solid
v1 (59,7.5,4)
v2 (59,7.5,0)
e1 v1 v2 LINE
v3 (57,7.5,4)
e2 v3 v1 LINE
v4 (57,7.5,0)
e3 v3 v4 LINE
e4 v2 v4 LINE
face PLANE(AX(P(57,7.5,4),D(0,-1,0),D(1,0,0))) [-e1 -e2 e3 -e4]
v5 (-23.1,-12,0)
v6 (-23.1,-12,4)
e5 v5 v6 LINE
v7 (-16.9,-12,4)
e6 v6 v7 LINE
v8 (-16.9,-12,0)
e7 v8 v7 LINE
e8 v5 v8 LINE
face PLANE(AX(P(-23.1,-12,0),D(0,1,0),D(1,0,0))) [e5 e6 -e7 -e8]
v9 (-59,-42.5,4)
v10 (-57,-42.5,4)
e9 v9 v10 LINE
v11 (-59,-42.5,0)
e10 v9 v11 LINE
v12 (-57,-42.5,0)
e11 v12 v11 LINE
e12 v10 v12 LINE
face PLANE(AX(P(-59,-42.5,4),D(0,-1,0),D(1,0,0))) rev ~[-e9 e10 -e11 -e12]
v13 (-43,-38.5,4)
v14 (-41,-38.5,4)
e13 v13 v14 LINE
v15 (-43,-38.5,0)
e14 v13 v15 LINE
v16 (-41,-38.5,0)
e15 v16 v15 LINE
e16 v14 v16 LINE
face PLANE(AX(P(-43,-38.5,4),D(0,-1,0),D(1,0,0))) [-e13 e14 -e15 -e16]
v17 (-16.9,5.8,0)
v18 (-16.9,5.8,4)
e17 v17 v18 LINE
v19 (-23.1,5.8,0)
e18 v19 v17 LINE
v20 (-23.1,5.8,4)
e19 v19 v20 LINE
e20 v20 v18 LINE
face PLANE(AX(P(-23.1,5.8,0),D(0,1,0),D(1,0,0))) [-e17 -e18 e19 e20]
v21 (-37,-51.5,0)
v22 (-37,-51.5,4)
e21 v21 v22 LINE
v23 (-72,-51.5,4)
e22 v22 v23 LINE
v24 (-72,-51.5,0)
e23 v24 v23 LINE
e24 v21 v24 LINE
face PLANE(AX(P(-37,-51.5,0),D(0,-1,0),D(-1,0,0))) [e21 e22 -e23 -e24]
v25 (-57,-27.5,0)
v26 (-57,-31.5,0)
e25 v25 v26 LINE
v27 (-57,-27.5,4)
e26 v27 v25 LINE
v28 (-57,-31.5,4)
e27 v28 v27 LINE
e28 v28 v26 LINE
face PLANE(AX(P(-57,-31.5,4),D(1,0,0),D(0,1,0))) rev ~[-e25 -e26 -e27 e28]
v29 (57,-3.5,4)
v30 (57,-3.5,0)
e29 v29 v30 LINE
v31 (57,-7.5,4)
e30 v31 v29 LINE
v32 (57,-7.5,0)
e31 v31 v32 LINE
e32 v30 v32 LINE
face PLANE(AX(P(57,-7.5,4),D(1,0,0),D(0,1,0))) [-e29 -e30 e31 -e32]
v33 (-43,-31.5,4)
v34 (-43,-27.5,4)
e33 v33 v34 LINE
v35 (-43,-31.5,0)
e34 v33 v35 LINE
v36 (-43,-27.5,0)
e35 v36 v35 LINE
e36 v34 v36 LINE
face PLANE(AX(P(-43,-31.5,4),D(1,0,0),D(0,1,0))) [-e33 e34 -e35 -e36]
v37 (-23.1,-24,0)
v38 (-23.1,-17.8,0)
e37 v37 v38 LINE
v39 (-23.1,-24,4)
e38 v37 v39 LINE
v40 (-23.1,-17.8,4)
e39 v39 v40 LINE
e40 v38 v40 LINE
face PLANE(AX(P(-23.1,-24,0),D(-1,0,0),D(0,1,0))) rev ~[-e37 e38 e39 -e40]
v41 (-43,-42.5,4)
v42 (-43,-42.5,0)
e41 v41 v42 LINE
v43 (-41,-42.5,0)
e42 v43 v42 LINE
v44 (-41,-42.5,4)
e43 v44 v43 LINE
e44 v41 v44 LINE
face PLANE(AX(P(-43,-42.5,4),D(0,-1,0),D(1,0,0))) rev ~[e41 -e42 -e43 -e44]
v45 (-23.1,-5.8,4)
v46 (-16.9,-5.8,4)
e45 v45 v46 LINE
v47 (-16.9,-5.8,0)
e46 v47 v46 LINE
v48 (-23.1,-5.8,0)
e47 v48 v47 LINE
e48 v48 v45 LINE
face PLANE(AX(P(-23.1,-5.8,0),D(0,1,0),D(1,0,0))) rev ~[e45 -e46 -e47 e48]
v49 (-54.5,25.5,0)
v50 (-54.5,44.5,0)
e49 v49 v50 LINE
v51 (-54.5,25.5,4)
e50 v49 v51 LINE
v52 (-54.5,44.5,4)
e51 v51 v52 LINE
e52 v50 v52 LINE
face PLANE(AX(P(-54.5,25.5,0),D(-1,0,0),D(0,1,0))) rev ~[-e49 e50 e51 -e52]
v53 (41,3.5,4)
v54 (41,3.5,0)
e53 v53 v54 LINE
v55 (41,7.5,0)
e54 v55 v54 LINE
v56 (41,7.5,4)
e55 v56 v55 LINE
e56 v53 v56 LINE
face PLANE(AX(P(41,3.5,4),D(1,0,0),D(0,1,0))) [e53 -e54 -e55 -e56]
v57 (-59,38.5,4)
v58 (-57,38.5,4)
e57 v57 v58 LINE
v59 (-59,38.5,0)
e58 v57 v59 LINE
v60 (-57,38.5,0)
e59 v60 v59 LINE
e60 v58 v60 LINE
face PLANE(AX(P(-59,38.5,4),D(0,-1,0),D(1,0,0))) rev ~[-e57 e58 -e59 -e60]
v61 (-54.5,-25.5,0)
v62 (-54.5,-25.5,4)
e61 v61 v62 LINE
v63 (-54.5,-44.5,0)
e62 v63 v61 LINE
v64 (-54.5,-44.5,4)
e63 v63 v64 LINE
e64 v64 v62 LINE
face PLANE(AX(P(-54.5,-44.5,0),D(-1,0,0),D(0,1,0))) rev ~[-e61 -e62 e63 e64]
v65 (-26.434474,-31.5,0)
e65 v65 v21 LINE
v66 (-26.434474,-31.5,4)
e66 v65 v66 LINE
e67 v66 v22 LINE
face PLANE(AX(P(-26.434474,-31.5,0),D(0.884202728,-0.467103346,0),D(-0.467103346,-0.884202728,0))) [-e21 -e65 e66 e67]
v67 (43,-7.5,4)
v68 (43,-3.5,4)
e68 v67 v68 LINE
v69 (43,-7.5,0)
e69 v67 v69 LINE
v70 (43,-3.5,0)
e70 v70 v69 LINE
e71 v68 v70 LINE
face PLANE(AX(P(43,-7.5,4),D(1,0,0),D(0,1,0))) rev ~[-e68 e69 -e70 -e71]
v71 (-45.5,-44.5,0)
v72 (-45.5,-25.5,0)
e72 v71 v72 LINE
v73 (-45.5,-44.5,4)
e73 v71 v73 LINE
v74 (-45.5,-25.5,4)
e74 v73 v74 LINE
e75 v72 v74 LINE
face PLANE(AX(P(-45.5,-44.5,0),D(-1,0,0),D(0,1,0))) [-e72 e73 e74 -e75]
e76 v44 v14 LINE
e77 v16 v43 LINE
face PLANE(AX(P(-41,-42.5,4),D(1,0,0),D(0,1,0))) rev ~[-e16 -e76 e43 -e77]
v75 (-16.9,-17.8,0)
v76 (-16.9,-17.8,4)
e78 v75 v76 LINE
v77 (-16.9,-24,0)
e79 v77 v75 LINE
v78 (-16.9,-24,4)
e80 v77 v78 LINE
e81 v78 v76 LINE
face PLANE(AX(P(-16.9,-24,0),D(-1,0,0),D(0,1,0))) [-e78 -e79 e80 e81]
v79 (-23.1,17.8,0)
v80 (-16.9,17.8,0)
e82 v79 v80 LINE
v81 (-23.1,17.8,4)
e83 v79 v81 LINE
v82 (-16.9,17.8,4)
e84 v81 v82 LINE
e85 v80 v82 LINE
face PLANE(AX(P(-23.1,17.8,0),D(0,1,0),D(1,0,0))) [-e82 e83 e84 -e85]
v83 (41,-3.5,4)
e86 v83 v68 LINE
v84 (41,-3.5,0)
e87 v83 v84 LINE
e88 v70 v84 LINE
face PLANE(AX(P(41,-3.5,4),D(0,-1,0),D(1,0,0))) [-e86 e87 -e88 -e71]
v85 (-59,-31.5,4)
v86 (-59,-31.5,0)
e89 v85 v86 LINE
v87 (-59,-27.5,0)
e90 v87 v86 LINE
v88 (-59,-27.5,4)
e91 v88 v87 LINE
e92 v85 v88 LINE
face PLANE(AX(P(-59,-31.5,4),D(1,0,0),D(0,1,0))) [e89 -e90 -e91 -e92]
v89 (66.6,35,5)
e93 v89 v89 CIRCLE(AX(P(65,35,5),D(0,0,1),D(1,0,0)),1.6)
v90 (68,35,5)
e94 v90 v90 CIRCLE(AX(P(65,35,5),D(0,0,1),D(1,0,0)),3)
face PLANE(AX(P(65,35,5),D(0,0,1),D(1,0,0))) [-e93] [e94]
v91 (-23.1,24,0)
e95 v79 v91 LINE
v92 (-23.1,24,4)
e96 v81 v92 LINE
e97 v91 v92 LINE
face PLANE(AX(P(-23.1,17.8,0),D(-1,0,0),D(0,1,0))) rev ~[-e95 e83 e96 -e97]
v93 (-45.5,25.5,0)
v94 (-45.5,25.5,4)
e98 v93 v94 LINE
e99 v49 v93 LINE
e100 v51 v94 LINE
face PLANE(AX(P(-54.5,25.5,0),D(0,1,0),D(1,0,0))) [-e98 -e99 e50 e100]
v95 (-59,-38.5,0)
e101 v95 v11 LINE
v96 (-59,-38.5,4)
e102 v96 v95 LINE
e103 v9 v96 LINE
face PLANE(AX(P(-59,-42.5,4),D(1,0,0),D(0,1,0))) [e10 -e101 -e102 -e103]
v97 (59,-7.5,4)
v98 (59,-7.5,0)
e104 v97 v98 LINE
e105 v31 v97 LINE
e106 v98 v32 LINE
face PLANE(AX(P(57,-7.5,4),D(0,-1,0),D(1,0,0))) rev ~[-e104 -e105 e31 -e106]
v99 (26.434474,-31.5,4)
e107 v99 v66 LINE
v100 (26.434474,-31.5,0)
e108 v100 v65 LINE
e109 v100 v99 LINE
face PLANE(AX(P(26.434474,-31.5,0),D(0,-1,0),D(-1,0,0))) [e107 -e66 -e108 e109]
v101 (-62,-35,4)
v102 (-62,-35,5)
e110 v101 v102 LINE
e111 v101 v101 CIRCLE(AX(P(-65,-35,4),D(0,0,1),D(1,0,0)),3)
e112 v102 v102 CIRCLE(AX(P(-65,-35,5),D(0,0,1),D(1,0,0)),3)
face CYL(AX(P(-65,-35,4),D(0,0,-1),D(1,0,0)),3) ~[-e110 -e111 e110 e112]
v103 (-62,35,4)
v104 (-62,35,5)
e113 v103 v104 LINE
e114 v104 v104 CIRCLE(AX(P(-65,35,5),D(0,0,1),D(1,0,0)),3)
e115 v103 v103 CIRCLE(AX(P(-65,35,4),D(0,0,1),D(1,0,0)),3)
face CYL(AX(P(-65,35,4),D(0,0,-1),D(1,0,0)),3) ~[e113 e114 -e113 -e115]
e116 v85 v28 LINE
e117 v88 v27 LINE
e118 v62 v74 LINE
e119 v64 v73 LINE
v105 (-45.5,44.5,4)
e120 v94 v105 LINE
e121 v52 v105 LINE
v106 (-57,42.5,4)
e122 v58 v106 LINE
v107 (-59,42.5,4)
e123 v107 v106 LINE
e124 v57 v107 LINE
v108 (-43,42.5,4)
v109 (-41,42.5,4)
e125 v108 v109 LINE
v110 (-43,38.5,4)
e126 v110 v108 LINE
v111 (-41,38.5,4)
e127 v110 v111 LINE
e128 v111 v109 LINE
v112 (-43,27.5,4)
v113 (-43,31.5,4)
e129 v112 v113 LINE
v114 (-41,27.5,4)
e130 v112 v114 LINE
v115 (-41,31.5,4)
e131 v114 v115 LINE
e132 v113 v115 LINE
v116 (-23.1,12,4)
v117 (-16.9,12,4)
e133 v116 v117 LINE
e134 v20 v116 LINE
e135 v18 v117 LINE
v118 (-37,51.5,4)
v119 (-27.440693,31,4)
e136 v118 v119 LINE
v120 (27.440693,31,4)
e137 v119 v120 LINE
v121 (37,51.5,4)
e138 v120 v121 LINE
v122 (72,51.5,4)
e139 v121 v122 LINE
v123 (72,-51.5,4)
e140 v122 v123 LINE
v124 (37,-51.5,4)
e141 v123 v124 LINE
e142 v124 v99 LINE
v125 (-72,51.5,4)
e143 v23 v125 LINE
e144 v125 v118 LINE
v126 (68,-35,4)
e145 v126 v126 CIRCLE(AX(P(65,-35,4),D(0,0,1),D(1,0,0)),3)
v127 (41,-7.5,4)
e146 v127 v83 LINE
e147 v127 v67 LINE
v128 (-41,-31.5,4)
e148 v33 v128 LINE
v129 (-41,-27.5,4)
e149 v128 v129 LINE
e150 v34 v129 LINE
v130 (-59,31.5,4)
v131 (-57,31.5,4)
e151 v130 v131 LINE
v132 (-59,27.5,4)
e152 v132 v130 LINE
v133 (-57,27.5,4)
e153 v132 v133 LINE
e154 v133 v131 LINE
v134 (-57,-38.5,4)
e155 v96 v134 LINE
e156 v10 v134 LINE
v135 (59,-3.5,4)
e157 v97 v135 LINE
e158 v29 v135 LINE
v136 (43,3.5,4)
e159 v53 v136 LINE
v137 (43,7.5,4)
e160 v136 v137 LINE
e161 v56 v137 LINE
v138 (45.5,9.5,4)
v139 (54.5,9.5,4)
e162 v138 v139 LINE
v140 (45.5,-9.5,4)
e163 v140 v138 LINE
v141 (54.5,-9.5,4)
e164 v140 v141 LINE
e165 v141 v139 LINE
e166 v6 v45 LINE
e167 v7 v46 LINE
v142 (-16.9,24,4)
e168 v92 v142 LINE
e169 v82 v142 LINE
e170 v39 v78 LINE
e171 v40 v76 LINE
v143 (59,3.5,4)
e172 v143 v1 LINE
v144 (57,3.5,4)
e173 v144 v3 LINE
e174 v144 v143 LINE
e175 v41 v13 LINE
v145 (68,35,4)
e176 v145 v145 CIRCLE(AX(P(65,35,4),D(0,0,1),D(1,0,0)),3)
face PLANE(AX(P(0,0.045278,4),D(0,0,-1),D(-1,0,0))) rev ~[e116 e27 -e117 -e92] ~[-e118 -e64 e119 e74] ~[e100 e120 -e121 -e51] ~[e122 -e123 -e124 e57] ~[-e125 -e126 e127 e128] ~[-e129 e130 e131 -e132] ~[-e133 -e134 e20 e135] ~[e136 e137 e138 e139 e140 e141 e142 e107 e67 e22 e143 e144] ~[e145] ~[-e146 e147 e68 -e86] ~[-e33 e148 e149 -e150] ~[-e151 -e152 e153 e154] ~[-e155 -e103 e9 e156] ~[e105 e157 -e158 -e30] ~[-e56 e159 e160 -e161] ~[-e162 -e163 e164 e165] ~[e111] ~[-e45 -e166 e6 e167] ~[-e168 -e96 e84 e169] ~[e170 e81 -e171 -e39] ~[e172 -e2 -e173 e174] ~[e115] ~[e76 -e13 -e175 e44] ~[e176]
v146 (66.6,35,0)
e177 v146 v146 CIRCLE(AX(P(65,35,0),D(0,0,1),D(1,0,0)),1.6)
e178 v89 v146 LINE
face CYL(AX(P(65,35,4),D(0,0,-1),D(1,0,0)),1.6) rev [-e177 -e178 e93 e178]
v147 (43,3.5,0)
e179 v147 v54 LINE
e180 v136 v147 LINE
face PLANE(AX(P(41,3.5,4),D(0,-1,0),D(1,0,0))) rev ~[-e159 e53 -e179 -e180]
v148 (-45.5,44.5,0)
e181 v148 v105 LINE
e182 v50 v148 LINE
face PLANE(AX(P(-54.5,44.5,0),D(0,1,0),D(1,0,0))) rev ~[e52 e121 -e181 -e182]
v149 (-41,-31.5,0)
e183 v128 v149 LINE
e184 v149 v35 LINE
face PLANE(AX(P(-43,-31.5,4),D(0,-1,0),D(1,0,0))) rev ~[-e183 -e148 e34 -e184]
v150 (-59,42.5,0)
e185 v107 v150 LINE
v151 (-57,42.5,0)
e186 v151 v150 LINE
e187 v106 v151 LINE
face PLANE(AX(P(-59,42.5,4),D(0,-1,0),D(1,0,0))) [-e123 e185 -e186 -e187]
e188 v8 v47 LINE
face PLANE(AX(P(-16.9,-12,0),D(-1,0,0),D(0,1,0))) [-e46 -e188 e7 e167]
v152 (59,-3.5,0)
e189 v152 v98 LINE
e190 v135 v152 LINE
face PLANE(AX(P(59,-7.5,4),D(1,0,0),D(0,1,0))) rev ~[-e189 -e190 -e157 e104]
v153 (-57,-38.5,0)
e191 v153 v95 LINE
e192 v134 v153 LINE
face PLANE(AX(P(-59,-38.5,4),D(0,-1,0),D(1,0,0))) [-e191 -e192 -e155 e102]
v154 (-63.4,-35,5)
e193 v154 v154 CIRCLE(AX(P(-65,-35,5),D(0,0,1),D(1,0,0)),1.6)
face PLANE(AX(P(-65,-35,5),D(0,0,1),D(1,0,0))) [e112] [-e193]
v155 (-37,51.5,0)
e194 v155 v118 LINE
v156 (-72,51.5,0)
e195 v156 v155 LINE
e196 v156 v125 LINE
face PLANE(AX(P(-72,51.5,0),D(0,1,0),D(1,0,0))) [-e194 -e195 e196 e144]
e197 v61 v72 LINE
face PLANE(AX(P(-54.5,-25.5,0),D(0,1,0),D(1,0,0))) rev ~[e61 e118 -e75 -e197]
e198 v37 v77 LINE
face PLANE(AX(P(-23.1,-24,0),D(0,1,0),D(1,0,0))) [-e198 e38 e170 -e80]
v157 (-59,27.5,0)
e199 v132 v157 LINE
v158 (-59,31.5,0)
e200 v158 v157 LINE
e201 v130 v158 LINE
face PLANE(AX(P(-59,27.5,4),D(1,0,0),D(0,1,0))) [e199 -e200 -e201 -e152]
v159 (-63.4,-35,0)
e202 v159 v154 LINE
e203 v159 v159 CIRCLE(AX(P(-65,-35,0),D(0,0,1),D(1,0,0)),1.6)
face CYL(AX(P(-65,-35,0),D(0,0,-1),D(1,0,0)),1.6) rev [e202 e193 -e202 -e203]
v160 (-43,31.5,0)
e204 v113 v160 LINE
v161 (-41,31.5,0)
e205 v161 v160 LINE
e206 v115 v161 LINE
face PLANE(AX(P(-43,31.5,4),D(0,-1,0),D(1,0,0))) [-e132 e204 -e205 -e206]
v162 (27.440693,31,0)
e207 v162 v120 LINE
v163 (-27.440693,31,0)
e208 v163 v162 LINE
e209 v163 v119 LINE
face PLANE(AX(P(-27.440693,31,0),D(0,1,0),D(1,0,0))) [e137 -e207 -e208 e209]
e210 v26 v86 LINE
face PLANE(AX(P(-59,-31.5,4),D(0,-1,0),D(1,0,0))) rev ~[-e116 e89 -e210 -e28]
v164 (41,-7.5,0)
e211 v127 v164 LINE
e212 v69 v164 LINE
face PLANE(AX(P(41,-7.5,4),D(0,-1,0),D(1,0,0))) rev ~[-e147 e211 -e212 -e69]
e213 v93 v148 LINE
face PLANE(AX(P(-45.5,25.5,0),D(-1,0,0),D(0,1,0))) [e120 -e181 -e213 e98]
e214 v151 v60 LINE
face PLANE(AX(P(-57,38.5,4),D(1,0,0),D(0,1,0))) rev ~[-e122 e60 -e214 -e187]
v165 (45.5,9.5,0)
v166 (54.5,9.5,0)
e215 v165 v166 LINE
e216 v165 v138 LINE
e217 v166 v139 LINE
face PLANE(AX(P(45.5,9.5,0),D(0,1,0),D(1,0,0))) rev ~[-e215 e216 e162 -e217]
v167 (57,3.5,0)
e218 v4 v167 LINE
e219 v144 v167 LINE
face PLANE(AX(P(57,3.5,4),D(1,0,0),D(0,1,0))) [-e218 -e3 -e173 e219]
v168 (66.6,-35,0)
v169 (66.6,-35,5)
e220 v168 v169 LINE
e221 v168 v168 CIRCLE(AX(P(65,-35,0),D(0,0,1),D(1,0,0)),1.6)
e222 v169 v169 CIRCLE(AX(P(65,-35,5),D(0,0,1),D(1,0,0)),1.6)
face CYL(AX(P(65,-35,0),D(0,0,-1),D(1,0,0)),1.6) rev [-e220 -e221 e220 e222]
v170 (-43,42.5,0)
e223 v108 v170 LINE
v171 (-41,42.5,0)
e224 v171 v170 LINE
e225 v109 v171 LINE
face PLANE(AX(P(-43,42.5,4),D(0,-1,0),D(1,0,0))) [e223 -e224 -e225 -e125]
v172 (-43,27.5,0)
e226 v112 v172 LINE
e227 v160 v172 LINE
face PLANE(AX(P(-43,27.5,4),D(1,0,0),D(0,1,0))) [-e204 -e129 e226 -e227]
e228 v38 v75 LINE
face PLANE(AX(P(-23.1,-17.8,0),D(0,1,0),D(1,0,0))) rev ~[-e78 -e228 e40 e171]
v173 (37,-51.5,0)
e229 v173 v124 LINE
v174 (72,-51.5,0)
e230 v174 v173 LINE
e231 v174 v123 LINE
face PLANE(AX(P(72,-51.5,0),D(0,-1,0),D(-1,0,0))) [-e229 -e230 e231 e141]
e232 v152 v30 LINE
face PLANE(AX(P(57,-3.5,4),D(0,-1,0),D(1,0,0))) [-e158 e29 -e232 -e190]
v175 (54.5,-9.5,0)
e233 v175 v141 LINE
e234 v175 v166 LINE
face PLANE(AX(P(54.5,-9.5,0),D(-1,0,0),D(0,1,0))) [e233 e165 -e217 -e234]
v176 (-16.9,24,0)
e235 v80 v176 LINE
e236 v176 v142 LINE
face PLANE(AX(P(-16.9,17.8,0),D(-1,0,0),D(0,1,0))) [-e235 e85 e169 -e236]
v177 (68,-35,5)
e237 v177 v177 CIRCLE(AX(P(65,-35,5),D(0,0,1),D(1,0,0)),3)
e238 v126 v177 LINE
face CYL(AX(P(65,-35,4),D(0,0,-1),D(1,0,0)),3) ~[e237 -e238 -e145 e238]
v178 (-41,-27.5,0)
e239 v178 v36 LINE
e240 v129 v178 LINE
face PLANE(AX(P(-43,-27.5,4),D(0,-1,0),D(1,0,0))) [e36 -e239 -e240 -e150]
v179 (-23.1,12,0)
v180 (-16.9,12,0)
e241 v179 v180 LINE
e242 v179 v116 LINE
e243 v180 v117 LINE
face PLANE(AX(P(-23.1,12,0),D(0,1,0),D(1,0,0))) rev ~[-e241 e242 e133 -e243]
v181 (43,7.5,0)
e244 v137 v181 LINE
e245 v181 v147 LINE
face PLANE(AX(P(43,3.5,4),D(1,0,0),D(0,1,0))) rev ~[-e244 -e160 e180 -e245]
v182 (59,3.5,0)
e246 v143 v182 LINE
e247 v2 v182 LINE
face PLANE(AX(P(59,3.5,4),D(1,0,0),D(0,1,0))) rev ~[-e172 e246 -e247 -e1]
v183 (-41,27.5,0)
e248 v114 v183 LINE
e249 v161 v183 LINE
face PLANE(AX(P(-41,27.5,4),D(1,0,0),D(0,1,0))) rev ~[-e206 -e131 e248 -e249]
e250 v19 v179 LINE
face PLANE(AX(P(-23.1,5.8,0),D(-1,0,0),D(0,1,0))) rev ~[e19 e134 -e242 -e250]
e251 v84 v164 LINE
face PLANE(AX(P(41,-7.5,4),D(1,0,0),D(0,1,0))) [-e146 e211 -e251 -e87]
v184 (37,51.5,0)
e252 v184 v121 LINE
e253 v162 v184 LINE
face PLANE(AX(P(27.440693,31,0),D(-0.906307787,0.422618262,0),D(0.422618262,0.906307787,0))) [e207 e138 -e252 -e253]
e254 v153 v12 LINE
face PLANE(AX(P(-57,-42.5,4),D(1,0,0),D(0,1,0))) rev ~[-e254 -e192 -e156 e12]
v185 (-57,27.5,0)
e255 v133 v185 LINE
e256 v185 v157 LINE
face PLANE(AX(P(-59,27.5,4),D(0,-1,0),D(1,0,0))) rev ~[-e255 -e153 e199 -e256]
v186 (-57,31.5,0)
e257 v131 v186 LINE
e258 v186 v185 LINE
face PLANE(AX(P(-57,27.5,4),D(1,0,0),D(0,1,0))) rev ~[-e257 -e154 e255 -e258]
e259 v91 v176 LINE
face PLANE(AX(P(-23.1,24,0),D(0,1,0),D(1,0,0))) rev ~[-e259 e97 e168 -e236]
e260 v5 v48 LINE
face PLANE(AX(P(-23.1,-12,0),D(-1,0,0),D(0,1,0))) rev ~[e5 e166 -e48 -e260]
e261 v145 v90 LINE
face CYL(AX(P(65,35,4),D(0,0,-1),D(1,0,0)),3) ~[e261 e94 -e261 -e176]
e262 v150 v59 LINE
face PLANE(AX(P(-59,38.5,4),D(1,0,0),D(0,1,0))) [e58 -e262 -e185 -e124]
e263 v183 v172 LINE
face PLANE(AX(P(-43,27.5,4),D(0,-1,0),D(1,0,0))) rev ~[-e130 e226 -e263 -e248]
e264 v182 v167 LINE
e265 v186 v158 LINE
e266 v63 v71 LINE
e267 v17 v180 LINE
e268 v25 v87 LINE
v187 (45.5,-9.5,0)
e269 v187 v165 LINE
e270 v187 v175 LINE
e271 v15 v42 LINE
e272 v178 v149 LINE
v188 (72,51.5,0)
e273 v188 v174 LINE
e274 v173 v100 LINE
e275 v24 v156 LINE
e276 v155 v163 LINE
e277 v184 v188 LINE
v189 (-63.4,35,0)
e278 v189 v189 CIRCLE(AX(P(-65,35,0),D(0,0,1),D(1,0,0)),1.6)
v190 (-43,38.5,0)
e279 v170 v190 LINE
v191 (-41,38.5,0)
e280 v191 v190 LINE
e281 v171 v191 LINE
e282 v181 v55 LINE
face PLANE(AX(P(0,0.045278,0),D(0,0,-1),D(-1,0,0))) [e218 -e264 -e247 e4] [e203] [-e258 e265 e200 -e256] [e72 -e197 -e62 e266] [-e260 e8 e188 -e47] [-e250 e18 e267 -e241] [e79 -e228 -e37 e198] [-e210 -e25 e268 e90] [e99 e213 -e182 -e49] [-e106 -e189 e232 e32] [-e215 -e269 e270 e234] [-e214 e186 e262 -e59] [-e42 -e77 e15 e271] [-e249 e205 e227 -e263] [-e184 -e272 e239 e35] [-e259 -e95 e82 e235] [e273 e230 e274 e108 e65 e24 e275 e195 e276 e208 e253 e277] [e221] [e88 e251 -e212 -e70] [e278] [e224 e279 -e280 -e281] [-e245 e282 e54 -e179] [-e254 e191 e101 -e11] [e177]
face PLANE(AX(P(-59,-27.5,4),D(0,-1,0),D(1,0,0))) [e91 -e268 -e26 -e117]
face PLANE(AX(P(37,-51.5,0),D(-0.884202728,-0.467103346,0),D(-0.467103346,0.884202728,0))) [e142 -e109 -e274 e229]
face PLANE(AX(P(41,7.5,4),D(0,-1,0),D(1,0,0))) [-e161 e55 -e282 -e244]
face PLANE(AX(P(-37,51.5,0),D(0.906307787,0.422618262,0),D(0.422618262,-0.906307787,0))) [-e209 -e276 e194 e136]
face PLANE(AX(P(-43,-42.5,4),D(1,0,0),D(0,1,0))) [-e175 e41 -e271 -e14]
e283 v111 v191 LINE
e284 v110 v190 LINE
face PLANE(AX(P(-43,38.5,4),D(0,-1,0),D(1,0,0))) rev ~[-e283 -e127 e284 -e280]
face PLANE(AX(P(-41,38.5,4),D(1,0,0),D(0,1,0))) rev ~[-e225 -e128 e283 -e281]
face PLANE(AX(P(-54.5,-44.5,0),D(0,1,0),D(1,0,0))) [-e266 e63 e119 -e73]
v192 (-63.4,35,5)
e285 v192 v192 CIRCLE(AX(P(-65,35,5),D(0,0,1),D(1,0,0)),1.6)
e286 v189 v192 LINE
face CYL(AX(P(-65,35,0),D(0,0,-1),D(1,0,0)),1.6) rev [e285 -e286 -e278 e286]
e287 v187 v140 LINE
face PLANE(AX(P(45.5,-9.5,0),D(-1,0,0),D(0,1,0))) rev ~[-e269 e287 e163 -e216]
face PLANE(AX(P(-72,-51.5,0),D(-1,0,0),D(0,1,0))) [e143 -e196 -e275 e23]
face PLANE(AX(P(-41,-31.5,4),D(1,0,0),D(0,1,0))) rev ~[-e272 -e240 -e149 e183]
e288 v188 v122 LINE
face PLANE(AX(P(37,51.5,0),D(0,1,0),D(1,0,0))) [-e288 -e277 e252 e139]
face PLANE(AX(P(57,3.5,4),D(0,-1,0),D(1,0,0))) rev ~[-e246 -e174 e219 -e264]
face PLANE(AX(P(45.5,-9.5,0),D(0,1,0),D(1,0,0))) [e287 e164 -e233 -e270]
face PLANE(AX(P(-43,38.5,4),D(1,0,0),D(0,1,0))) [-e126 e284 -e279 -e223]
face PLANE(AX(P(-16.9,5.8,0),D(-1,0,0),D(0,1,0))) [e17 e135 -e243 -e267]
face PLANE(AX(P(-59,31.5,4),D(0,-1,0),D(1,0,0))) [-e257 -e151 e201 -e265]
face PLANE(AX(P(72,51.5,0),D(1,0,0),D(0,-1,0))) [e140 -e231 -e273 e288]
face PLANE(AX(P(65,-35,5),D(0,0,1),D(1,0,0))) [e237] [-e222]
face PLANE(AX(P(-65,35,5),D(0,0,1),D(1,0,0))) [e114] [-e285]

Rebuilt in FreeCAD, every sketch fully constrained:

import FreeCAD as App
import Part
import Sketcher
Q = App.Units.Quantity

doc = App.newDocument("Part")
body = doc.addObject("PartDesign::Body", "Body")

# Sketch on XY plane
sketch1 = body.newObject("Sketcher::SketchObject", "Sketch")
sketch1.AttachmentSupport = (doc.getObject("XY_Plane"), [""])
sketch1.MapMode = "FlatFace"
sketch1.addGeometry(Part.LineSegment(App.Vector(-37, 51.5, 0), App.Vector(-72, 51.5, 0)), False)
sketch1.addGeometry(Part.LineSegment(App.Vector(-72, 51.5, 0), App.Vector(-72, -51.5, 0)), False)
sketch1.addGeometry(Part.LineSegment(App.Vector(-72, -51.5, 0), App.Vector(-37, -51.5, 0)), False)
sketch1.addGeometry(Part.LineSegment(App.Vector(-37, -51.5, 0), App.Vector(-26.4, -31.5, 0)), False)
sketch1.addGeometry(Part.LineSegment(App.Vector(-26.4, -31.5, 0), App.Vector(26.4, -31.5, 0)), False)
sketch1.addGeometry(Part.LineSegment(App.Vector(26.4, -31.5, 0), App.Vector(37, -51.5, 0)), False)
sketch1.addGeometry(Part.LineSegment(App.Vector(37, -51.5, 0), App.Vector(72, -51.5, 0)), False)
sketch1.addGeometry(Part.LineSegment(App.Vector(72, -51.5, 0), App.Vector(72, 51.5, 0)), False)
sketch1.addGeometry(Part.LineSegment(App.Vector(72, 51.5, 0), App.Vector(37, 51.5, 0)), False)
sketch1.addGeometry(Part.LineSegment(App.Vector(37, 51.5, 0), App.Vector(27.4, 31, 0)), False)
sketch1.addGeometry(Part.LineSegment(App.Vector(27.4, 31, 0), App.Vector(-27.4, 31, 0)), False)
sketch1.addGeometry(Part.LineSegment(App.Vector(-27.4, 31, 0), App.Vector(-37, 51.5, 0)), False)
sketch1.addGeometry(Part.Circle(App.Vector(65, -35, 0), App.Vector(0, 0, 1), 1.6), False)
sketch1.addGeometry(Part.LineSegment(App.Vector(-54.5, -44.5, 0), App.Vector(-54.5, -25.5, 0)), False)
sketch1.addGeometry(Part.LineSegment(App.Vector(-54.5, -25.5, 0), App.Vector(-45.5, -25.5, 0)), False)
sketch1.addGeometry(Part.LineSegment(App.Vector(-45.5, -25.5, 0), App.Vector(-45.5, -44.5, 0)), False)
sketch1.addGeometry(Part.LineSegment(App.Vector(-45.5, -44.5, 0), App.Vector(-54.5, -44.5, 0)), False)
sketch1.addGeometry(Part.Circle(App.Vector(-65, -35, 0), App.Vector(0, 0, 1), 1.6), False)
sketch1.addGeometry(Part.LineSegment(App.Vector(-23.1, -24, 0), App.Vector(-23.1, -17.8, 0)), False)
sketch1.addGeometry(Part.LineSegment(App.Vector(-23.1, -17.8, 0), App.Vector(-16.9, -17.8, 0)), False)
sketch1.addGeometry(Part.LineSegment(App.Vector(-16.9, -17.8, 0), App.Vector(-16.9, -24, 0)), False)
sketch1.addGeometry(Part.LineSegment(App.Vector(-16.9, -24, 0), App.Vector(-23.1, -24, 0)), False)
sketch1.addGeometry(Part.LineSegment(App.Vector(-23.1, -12, 0), App.Vector(-23.1, -5.8, 0)), False)
sketch1.addGeometry(Part.LineSegment(App.Vector(-23.1, -5.8, 0), App.Vector(-16.9, -5.8, 0)), False)
sketch1.addGeometry(Part.LineSegment(App.Vector(-16.9, -5.8, 0), App.Vector(-16.9, -12, 0)), False)
sketch1.addGeometry(Part.LineSegment(App.Vector(-16.9, -12, 0), App.Vector(-23.1, -12, 0)), False)
sketch1.addGeometry(Part.LineSegment(App.Vector(45.5, -9.5, 0), App.Vector(45.5, 9.5, 0)), False)
sketch1.addGeometry(Part.LineSegment(App.Vector(45.5, 9.5, 0), App.Vector(54.5, 9.5, 0)), False)
sketch1.addGeometry(Part.LineSegment(App.Vector(54.5, 9.5, 0), App.Vector(54.5, -9.5, 0)), False)
sketch1.addGeometry(Part.LineSegment(App.Vector(54.5, -9.5, 0), App.Vector(45.5, -9.5, 0)), False)
sketch1.addGeometry(Part.Circle(App.Vector(65, 35, 0), App.Vector(0, 0, 1), 1.6), False)
sketch1.addGeometry(Part.LineSegment(App.Vector(-23.1, 5.8, 0), App.Vector(-23.1, 12, 0)), False)
sketch1.addGeometry(Part.LineSegment(App.Vector(-23.1, 12, 0), App.Vector(-16.9, 12, 0)), False)
sketch1.addGeometry(Part.LineSegment(App.Vector(-16.9, 12, 0), App.Vector(-16.9, 5.8, 0)), False)
sketch1.addGeometry(Part.LineSegment(App.Vector(-16.9, 5.8, 0), App.Vector(-23.1, 5.8, 0)), False)
sketch1.addGeometry(Part.LineSegment(App.Vector(-23.1, 17.8, 0), App.Vector(-23.1, 24, 0)), False)
sketch1.addGeometry(Part.LineSegment(App.Vector(-23.1, 24, 0), App.Vector(-16.9, 24, 0)), False)
sketch1.addGeometry(Part.LineSegment(App.Vector(-16.9, 24, 0), App.Vector(-16.9, 17.8, 0)), False)
sketch1.addGeometry(Part.LineSegment(App.Vector(-16.9, 17.8, 0), App.Vector(-23.1, 17.8, 0)), False)
sketch1.addGeometry(Part.LineSegment(App.Vector(-54.5, 25.5, 0), App.Vector(-54.5, 44.5, 0)), False)
sketch1.addGeometry(Part.LineSegment(App.Vector(-54.5, 44.5, 0), App.Vector(-45.5, 44.5, 0)), False)
sketch1.addGeometry(Part.LineSegment(App.Vector(-45.5, 44.5, 0), App.Vector(-45.5, 25.5, 0)), False)
sketch1.addGeometry(Part.LineSegment(App.Vector(-45.5, 25.5, 0), App.Vector(-54.5, 25.5, 0)), False)
sketch1.addGeometry(Part.Circle(App.Vector(-65, 35, 0), App.Vector(0, 0, 1), 1.6), False)
sketch1.addConstraint(Sketcher.Constraint("Coincident", 0, 2, 1, 1))
sketch1.addConstraint(Sketcher.Constraint("Coincident", 1, 2, 2, 1))
sketch1.addConstraint(Sketcher.Constraint("Coincident", 2, 2, 3, 1))
sketch1.addConstraint(Sketcher.Constraint("Coincident", 3, 2, 4, 1))
sketch1.addConstraint(Sketcher.Constraint("Coincident", 4, 2, 5, 1))
sketch1.addConstraint(Sketcher.Constraint("Coincident", 5, 2, 6, 1))
sketch1.addConstraint(Sketcher.Constraint("Coincident", 6, 2, 7, 1))
sketch1.addConstraint(Sketcher.Constraint("Coincident", 7, 2, 8, 1))
sketch1.addConstraint(Sketcher.Constraint("Coincident", 8, 2, 9, 1))
sketch1.addConstraint(Sketcher.Constraint("Coincident", 9, 2, 10, 1))
sketch1.addConstraint(Sketcher.Constraint("Coincident", 10, 2, 11, 1))
sketch1.addConstraint(Sketcher.Constraint("Coincident", 11, 2, 0, 1))
sketch1.addConstraint(Sketcher.Constraint("Coincident", 13, 2, 14, 1))
sketch1.addConstraint(Sketcher.Constraint("Coincident", 14, 2, 15, 1))
sketch1.addConstraint(Sketcher.Constraint("Coincident", 15, 2, 16, 1))
sketch1.addConstraint(Sketcher.Constraint("Coincident", 16, 2, 13, 1))
sketch1.addConstraint(Sketcher.Constraint("Coincident", 18, 2, 19, 1))
sketch1.addConstraint(Sketcher.Constraint("Coincident", 19, 2, 20, 1))
sketch1.addConstraint(Sketcher.Constraint("Coincident", 20, 2, 21, 1))
sketch1.addConstraint(Sketcher.Constraint("Coincident", 21, 2, 18, 1))
sketch1.addConstraint(Sketcher.Constraint("Coincident", 22, 2, 23, 1))
sketch1.addConstraint(Sketcher.Constraint("Coincident", 23, 2, 24, 1))
sketch1.addConstraint(Sketcher.Constraint("Coincident", 24, 2, 25, 1))
sketch1.addConstraint(Sketcher.Constraint("Coincident", 25, 2, 22, 1))
sketch1.addConstraint(Sketcher.Constraint("Coincident", 26, 2, 27, 1))
sketch1.addConstraint(Sketcher.Constraint("Coincident", 27, 2, 28, 1))
sketch1.addConstraint(Sketcher.Constraint("Coincident", 28, 2, 29, 1))
sketch1.addConstraint(Sketcher.Constraint("Coincident", 29, 2, 26, 1))
sketch1.addConstraint(Sketcher.Constraint("Coincident", 31, 2, 32, 1))
sketch1.addConstraint(Sketcher.Constraint("Coincident", 32, 2, 33, 1))
sketch1.addConstraint(Sketcher.Constraint("Coincident", 33, 2, 34, 1))
sketch1.addConstraint(Sketcher.Constraint("Coincident", 34, 2, 31, 1))
sketch1.addConstraint(Sketcher.Constraint("Coincident", 35, 2, 36, 1))
sketch1.addConstraint(Sketcher.Constraint("Coincident", 36, 2, 37, 1))
sketch1.addConstraint(Sketcher.Constraint("Coincident", 37, 2, 38, 1))
sketch1.addConstraint(Sketcher.Constraint("Coincident", 38, 2, 35, 1))
sketch1.addConstraint(Sketcher.Constraint("Coincident", 39, 2, 40, 1))
sketch1.addConstraint(Sketcher.Constraint("Coincident", 40, 2, 41, 1))
sketch1.addConstraint(Sketcher.Constraint("Coincident", 41, 2, 42, 1))
sketch1.addConstraint(Sketcher.Constraint("Coincident", 42, 2, 39, 1))
sketch1.addConstraint(Sketcher.Constraint("Horizontal", 0))
sketch1.addConstraint(Sketcher.Constraint("Vertical", 1))
sketch1.addConstraint(Sketcher.Constraint("Horizontal", 2))
sketch1.addConstraint(Sketcher.Constraint("Horizontal", 4))
sketch1.addConstraint(Sketcher.Constraint("Horizontal", 6))
sketch1.addConstraint(Sketcher.Constraint("Vertical", 7))
sketch1.addConstraint(Sketcher.Constraint("Horizontal", 8))
sketch1.addConstraint(Sketcher.Constraint("Horizontal", 10))
sketch1.addConstraint(Sketcher.Constraint("Vertical", 13))
sketch1.addConstraint(Sketcher.Constraint("Horizontal", 14))
sketch1.addConstraint(Sketcher.Constraint("Vertical", 15))
sketch1.addConstraint(Sketcher.Constraint("Horizontal", 16))
sketch1.addConstraint(Sketcher.Constraint("Vertical", 18))
sketch1.addConstraint(Sketcher.Constraint("Horizontal", 19))
sketch1.addConstraint(Sketcher.Constraint("Vertical", 20))
sketch1.addConstraint(Sketcher.Constraint("Horizontal", 21))
sketch1.addConstraint(Sketcher.Constraint("Vertical", 22))
sketch1.addConstraint(Sketcher.Constraint("Horizontal", 23))
sketch1.addConstraint(Sketcher.Constraint("Vertical", 24))
sketch1.addConstraint(Sketcher.Constraint("Horizontal", 25))
sketch1.addConstraint(Sketcher.Constraint("Vertical", 26))
sketch1.addConstraint(Sketcher.Constraint("Horizontal", 27))
sketch1.addConstraint(Sketcher.Constraint("Vertical", 28))
sketch1.addConstraint(Sketcher.Constraint("Horizontal", 29))
sketch1.addConstraint(Sketcher.Constraint("Vertical", 31))
sketch1.addConstraint(Sketcher.Constraint("Horizontal", 32))
sketch1.addConstraint(Sketcher.Constraint("Vertical", 33))
sketch1.addConstraint(Sketcher.Constraint("Horizontal", 34))
sketch1.addConstraint(Sketcher.Constraint("Vertical", 35))
sketch1.addConstraint(Sketcher.Constraint("Horizontal", 36))
sketch1.addConstraint(Sketcher.Constraint("Vertical", 37))
sketch1.addConstraint(Sketcher.Constraint("Horizontal", 38))
sketch1.addConstraint(Sketcher.Constraint("Vertical", 39))
sketch1.addConstraint(Sketcher.Constraint("Horizontal", 40))
sketch1.addConstraint(Sketcher.Constraint("Vertical", 41))
sketch1.addConstraint(Sketcher.Constraint("Horizontal", 42))
sketch1.addConstraint(Sketcher.Constraint("Equal", 12, 17))
sketch1.addConstraint(Sketcher.Constraint("Equal", 17, 30))
sketch1.addConstraint(Sketcher.Constraint("Equal", 30, 43))
sketch1.addConstraint(Sketcher.Constraint("Symmetric", 17, 3, 30, 3, -1, 1))
sketch1.addConstraint(Sketcher.Constraint("Symmetric", 12, 3, 43, 3, -1, 1))
sketch1.addConstraint(Sketcher.Constraint("Symmetric", 0, 2, 6, 2, -1, 1))
sketch1.addConstraint(Sketcher.Constraint("Symmetric", 2, 2, 8, 2, -1, 1))
sketch1.addConstraint(Sketcher.Constraint("Symmetric", 12, 3, 17, 3, -2))
sketch1.addConstraint(Sketcher.Constraint("Symmetric", 2, 2, 5, 2, -2))
sketch1.addConstraint(Sketcher.Constraint("Symmetric", 25, 2, 31, 2, -1))
sketch1.addConstraint(Sketcher.Constraint("Symmetric", 23, 2, 33, 2, -1))
sketch1.addConstraint(Sketcher.Constraint("Symmetric", 21, 2, 35, 2, -1))
sketch1.addConstraint(Sketcher.Constraint("Symmetric", 19, 2, 37, 2, -1))
sketch1.addConstraint(Sketcher.Constraint("Symmetric", 16, 2, 39, 2, -1))
sketch1.addConstraint(Sketcher.Constraint("Symmetric", 14, 2, 41, 2, -1))
sketch1.addConstraint(Sketcher.Constraint("Vertical", 2, 2, 11, 2))
sketch1.addConstraint(Sketcher.Constraint("Vertical", 21, 2, 22, 2))
sketch1.addConstraint(Sketcher.Constraint("Vertical", 20, 2, 23, 2))
sketch1.addConstraint(Sketcher.Constraint("Equal", 16, 27))
sketch1.addConstraint(Sketcher.Constraint("Equal", 38, 18))
sketch1.addConstraint(Sketcher.Constraint("Equal", 20, 22))
sketch1.addConstraint(Sketcher.Constraint("Equal", 15, 26))
sketch1.addConstraint(Sketcher.Constraint("Equal", 3, 5))
sketch1.addConstraint(Sketcher.Constraint("Equal", 5, 9))
sketch1.addConstraint(Sketcher.Constraint("Equal", 9, 11))
sketch1.addConstraint(Sketcher.Constraint("Diameter", 12, 3.2))
sketch1.addConstraint(Sketcher.Constraint("DistanceX", 0, 2, 0, 1, 35.0))
sketch1.addConstraint(Sketcher.Constraint("DistanceX", 14, 1, 14, 2, 9.0))
sketch1.addConstraint(Sketcher.Constraint("DistanceY", 1, 2, 1, 1, 103.0))
sketch1.addConstraint(Sketcher.Constraint("DistanceY", 13, 1, 13, 2, 19.0))
sketch1.addConstraint(Sketcher.Constraint("Angle", 9, Q("-115 deg")))
sketch1.addConstraint(Sketcher.Constraint("DistanceX", 19, 1, 19, 2, 6.2))
sketch1.addConstraint(Sketcher.Constraint("DistanceX", -1, 1, 12, 3, 65.0))
sketch1.addConstraint(Sketcher.Constraint("DistanceY", 12, 3, -1, 1, 35.0))
sketch1.addConstraint(Sketcher.Constraint("DistanceX", 0, 2, -1, 1, 72.0))
sketch1.addConstraint(Sketcher.Constraint("DistanceY", -1, 1, 9, 2, 31.0))
sketch1.addConstraint(Sketcher.Constraint("DistanceY", 20, 2, -1, 1, 24.0))
sketch1.addConstraint(Sketcher.Constraint("DistanceY", 24, 2, -1, 1, 12.0))
sketch1.addConstraint(Sketcher.Constraint("DistanceY", 2, 2, 3, 2, 20.0))
sketch1.addConstraint(Sketcher.Constraint("DistanceY", 3, 2, 13, 2, 6.0))
sketch1.addConstraint(Sketcher.Constraint("DistanceY", 26, 2, 8, 2, 42.0))
sketch1.addConstraint(Sketcher.Constraint("DistanceX", 13, 2, -1, 1, 54.5))
sketch1.addConstraint(Sketcher.Constraint("DistanceX", 18, 2, -1, 1, 23.1))
sketch1.addConstraint(Sketcher.Constraint("DistanceX", -1, 1, 26, 2, 45.5))
pad1 = body.newObject("PartDesign::Pad", "Pad")
pad1.Profile = sketch1
pad1.Length = 4

# Sketch on XY plane
sketch2 = body.newObject("Sketcher::SketchObject", "Sketch001")
sketch2.AttachmentSupport = (doc.getObject("XY_Plane"), [""])
sketch2.MapMode = "FlatFace"
sketch2.AttachmentOffset = App.Placement(App.Vector(0, 0, 4), App.Rotation())
sketch2.addGeometry(Part.Circle(App.Vector(65, 35, 0), App.Vector(0, 0, 1), 3), False)
sketch2.addGeometry(Part.Circle(App.Vector(65, 35, 0), App.Vector(0, 0, 1), 1.6), False)
sketch2.addGeometry(Part.Circle(App.Vector(-65, 35, 0), App.Vector(0, 0, 1), 3), False)
sketch2.addGeometry(Part.Circle(App.Vector(-65, 35, 0), App.Vector(0, 0, 1), 1.6), False)
sketch2.addGeometry(Part.Circle(App.Vector(-65, -35, 0), App.Vector(0, 0, 1), 3), False)
sketch2.addGeometry(Part.Circle(App.Vector(-65, -35, 0), App.Vector(0, 0, 1), 1.6), False)
sketch2.addGeometry(Part.Circle(App.Vector(65, -35, 0), App.Vector(0, 0, 1), 3), False)
sketch2.addGeometry(Part.Circle(App.Vector(65, -35, 0), App.Vector(0, 0, 1), 1.6), False)
sketch2.addConstraint(Sketcher.Constraint("Coincident", 1, 3, 0, 3))
sketch2.addConstraint(Sketcher.Constraint("Coincident", 3, 3, 2, 3))
sketch2.addConstraint(Sketcher.Constraint("Coincident", 5, 3, 4, 3))
sketch2.addConstraint(Sketcher.Constraint("Coincident", 7, 3, 6, 3))
sketch2.addConstraint(Sketcher.Constraint("Equal", 0, 2))
sketch2.addConstraint(Sketcher.Constraint("Equal", 1, 3))
sketch2.addConstraint(Sketcher.Constraint("Equal", 2, 4))
sketch2.addConstraint(Sketcher.Constraint("Equal", 3, 5))
sketch2.addConstraint(Sketcher.Constraint("Equal", 4, 6))
sketch2.addConstraint(Sketcher.Constraint("Equal", 5, 7))
sketch2.addConstraint(Sketcher.Constraint("Symmetric", 0, 3, 4, 3, -1, 1))
sketch2.addConstraint(Sketcher.Constraint("Symmetric", 2, 3, 6, 3, -1, 1))
sketch2.addConstraint(Sketcher.Constraint("Symmetric", 0, 3, 2, 3, -2))
sketch2.addConstraint(Sketcher.Constraint("Diameter", 0, 6.0))
sketch2.addConstraint(Sketcher.Constraint("Diameter", 1, 3.2))
sketch2.addConstraint(Sketcher.Constraint("DistanceX", -1, 1, 0, 3, 65.0))
sketch2.addConstraint(Sketcher.Constraint("DistanceY", -1, 1, 0, 3, 35.0))
pad2 = body.newObject("PartDesign::Pad", "Pad001")
pad2.Profile = sketch2
pad2.Length = 1

# Sketch on XY plane
sketch3 = body.newObject("Sketcher::SketchObject", "Sketch002")
sketch3.AttachmentSupport = (doc.getObject("XY_Plane"), [""])
sketch3.MapMode = "FlatFace"
sketch3.AttachmentOffset = App.Placement(App.Vector(0, 0, 4), App.Rotation())
sketch3.addGeometry(Part.LineSegment(App.Vector(-43, 42.5, 0), App.Vector(-43, 38.5, 0)), False)
sketch3.addGeometry(Part.LineSegment(App.Vector(-43, 38.5, 0), App.Vector(-41, 38.5, 0)), False)
sketch3.addGeometry(Part.LineSegment(App.Vector(-41, 38.5, 0), App.Vector(-41, 42.5, 0)), False)
sketch3.addGeometry(Part.LineSegment(App.Vector(-41, 42.5, 0), App.Vector(-43, 42.5, 0)), False)
sketch3.addGeometry(Part.LineSegment(App.Vector(-43, 31.5, 0), App.Vector(-43, 27.5, 0)), False)
sketch3.addGeometry(Part.LineSegment(App.Vector(-43, 27.5, 0), App.Vector(-41, 27.5, 0)), False)
sketch3.addGeometry(Part.LineSegment(App.Vector(-41, 27.5, 0), App.Vector(-41, 31.5, 0)), False)
sketch3.addGeometry(Part.LineSegment(App.Vector(-41, 31.5, 0), App.Vector(-43, 31.5, 0)), False)
sketch3.addGeometry(Part.LineSegment(App.Vector(-59, 42.5, 0), App.Vector(-59, 38.5, 0)), False)
sketch3.addGeometry(Part.LineSegment(App.Vector(-59, 38.5, 0), App.Vector(-57, 38.5, 0)), False)
sketch3.addGeometry(Part.LineSegment(App.Vector(-57, 38.5, 0), App.Vector(-57, 42.5, 0)), False)
sketch3.addGeometry(Part.LineSegment(App.Vector(-57, 42.5, 0), App.Vector(-59, 42.5, 0)), False)
sketch3.addGeometry(Part.LineSegment(App.Vector(-59, 31.5, 0), App.Vector(-59, 27.5, 0)), False)
sketch3.addGeometry(Part.LineSegment(App.Vector(-59, 27.5, 0), App.Vector(-57, 27.5, 0)), False)
sketch3.addGeometry(Part.LineSegment(App.Vector(-57, 27.5, 0), App.Vector(-57, 31.5, 0)), False)
sketch3.addGeometry(Part.LineSegment(App.Vector(-57, 31.5, 0), App.Vector(-59, 31.5, 0)), False)
sketch3.addGeometry(Part.LineSegment(App.Vector(41, 7.5, 0), App.Vector(41, 3.5, 0)), False)
sketch3.addGeometry(Part.LineSegment(App.Vector(41, 3.5, 0), App.Vector(43, 3.5, 0)), False)
sketch3.addGeometry(Part.LineSegment(App.Vector(43, 3.5, 0), App.Vector(43, 7.5, 0)), False)
sketch3.addGeometry(Part.LineSegment(App.Vector(43, 7.5, 0), App.Vector(41, 7.5, 0)), False)
sketch3.addGeometry(Part.LineSegment(App.Vector(57, 7.5, 0), App.Vector(57, 3.5, 0)), False)
sketch3.addGeometry(Part.LineSegment(App.Vector(57, 3.5, 0), App.Vector(59, 3.5, 0)), False)
sketch3.addGeometry(Part.LineSegment(App.Vector(59, 3.5, 0), App.Vector(59, 7.5, 0)), False)
sketch3.addGeometry(Part.LineSegment(App.Vector(59, 7.5, 0), App.Vector(57, 7.5, 0)), False)
sketch3.addGeometry(Part.LineSegment(App.Vector(57, -3.5, 0), App.Vector(57, -7.5, 0)), False)
sketch3.addGeometry(Part.LineSegment(App.Vector(57, -7.5, 0), App.Vector(59, -7.5, 0)), False)
sketch3.addGeometry(Part.LineSegment(App.Vector(59, -7.5, 0), App.Vector(59, -3.5, 0)), False)
sketch3.addGeometry(Part.LineSegment(App.Vector(59, -3.5, 0), App.Vector(57, -3.5, 0)), False)
sketch3.addGeometry(Part.LineSegment(App.Vector(41, -3.5, 0), App.Vector(41, -7.5, 0)), False)
sketch3.addGeometry(Part.LineSegment(App.Vector(41, -7.5, 0), App.Vector(43, -7.5, 0)), False)
sketch3.addGeometry(Part.LineSegment(App.Vector(43, -7.5, 0), App.Vector(43, -3.5, 0)), False)
sketch3.addGeometry(Part.LineSegment(App.Vector(43, -3.5, 0), App.Vector(41, -3.5, 0)), False)
sketch3.addGeometry(Part.LineSegment(App.Vector(-43, -27.5, 0), App.Vector(-43, -31.5, 0)), False)
sketch3.addGeometry(Part.LineSegment(App.Vector(-43, -31.5, 0), App.Vector(-41, -31.5, 0)), False)
sketch3.addGeometry(Part.LineSegment(App.Vector(-41, -31.5, 0), App.Vector(-41, -27.5, 0)), False)
sketch3.addGeometry(Part.LineSegment(App.Vector(-41, -27.5, 0), App.Vector(-43, -27.5, 0)), False)
sketch3.addGeometry(Part.LineSegment(App.Vector(-59, -27.5, 0), App.Vector(-59, -31.5, 0)), False)
sketch3.addGeometry(Part.LineSegment(App.Vector(-59, -31.5, 0), App.Vector(-57, -31.5, 0)), False)
sketch3.addGeometry(Part.LineSegment(App.Vector(-57, -31.5, 0), App.Vector(-57, -27.5, 0)), False)
sketch3.addGeometry(Part.LineSegment(App.Vector(-57, -27.5, 0), App.Vector(-59, -27.5, 0)), False)
sketch3.addGeometry(Part.LineSegment(App.Vector(-43, -38.5, 0), App.Vector(-43, -42.5, 0)), False)
sketch3.addGeometry(Part.LineSegment(App.Vector(-43, -42.5, 0), App.Vector(-41, -42.5, 0)), False)
sketch3.addGeometry(Part.LineSegment(App.Vector(-41, -42.5, 0), App.Vector(-41, -38.5, 0)), False)
sketch3.addGeometry(Part.LineSegment(App.Vector(-41, -38.5, 0), App.Vector(-43, -38.5, 0)), False)
sketch3.addGeometry(Part.LineSegment(App.Vector(-59, -38.5, 0), App.Vector(-59, -42.5, 0)), False)
sketch3.addGeometry(Part.LineSegment(App.Vector(-59, -42.5, 0), App.Vector(-57, -42.5, 0)), False)
sketch3.addGeometry(Part.LineSegment(App.Vector(-57, -42.5, 0), App.Vector(-57, -38.5, 0)), False)
sketch3.addGeometry(Part.LineSegment(App.Vector(-57, -38.5, 0), App.Vector(-59, -38.5, 0)), False)
sketch3.addConstraint(Sketcher.Constraint("Coincident", 0, 2, 1, 1))
sketch3.addConstraint(Sketcher.Constraint("Coincident", 1, 2, 2, 1))
sketch3.addConstraint(Sketcher.Constraint("Coincident", 2, 2, 3, 1))
sketch3.addConstraint(Sketcher.Constraint("Coincident", 3, 2, 0, 1))
sketch3.addConstraint(Sketcher.Constraint("Coincident", 4, 2, 5, 1))
sketch3.addConstraint(Sketcher.Constraint("Coincident", 5, 2, 6, 1))
sketch3.addConstraint(Sketcher.Constraint("Coincident", 6, 2, 7, 1))
sketch3.addConstraint(Sketcher.Constraint("Coincident", 7, 2, 4, 1))
sketch3.addConstraint(Sketcher.Constraint("Coincident", 8, 2, 9, 1))
sketch3.addConstraint(Sketcher.Constraint("Coincident", 9, 2, 10, 1))
sketch3.addConstraint(Sketcher.Constraint("Coincident", 10, 2, 11, 1))
sketch3.addConstraint(Sketcher.Constraint("Coincident", 11, 2, 8, 1))
sketch3.addConstraint(Sketcher.Constraint("Coincident", 12, 2, 13, 1))
sketch3.addConstraint(Sketcher.Constraint("Coincident", 13, 2, 14, 1))
sketch3.addConstraint(Sketcher.Constraint("Coincident", 14, 2, 15, 1))
sketch3.addConstraint(Sketcher.Constraint("Coincident", 15, 2, 12, 1))
sketch3.addConstraint(Sketcher.Constraint("Coincident", 16, 2, 17, 1))
sketch3.addConstraint(Sketcher.Constraint("Coincident", 17, 2, 18, 1))
sketch3.addConstraint(Sketcher.Constraint("Coincident", 18, 2, 19, 1))
sketch3.addConstraint(Sketcher.Constraint("Coincident", 19, 2, 16, 1))
sketch3.addConstraint(Sketcher.Constraint("Coincident", 20, 2, 21, 1))
sketch3.addConstraint(Sketcher.Constraint("Coincident", 21, 2, 22, 1))
sketch3.addConstraint(Sketcher.Constraint("Coincident", 22, 2, 23, 1))
sketch3.addConstraint(Sketcher.Constraint("Coincident", 23, 2, 20, 1))
sketch3.addConstraint(Sketcher.Constraint("Coincident", 24, 2, 25, 1))
sketch3.addConstraint(Sketcher.Constraint("Coincident", 25, 2, 26, 1))
sketch3.addConstraint(Sketcher.Constraint("Coincident", 26, 2, 27, 1))
sketch3.addConstraint(Sketcher.Constraint("Coincident", 27, 2, 24, 1))
sketch3.addConstraint(Sketcher.Constraint("Coincident", 28, 2, 29, 1))
sketch3.addConstraint(Sketcher.Constraint("Coincident", 29, 2, 30, 1))
sketch3.addConstraint(Sketcher.Constraint("Coincident", 30, 2, 31, 1))
sketch3.addConstraint(Sketcher.Constraint("Coincident", 31, 2, 28, 1))
sketch3.addConstraint(Sketcher.Constraint("Coincident", 32, 2, 33, 1))
sketch3.addConstraint(Sketcher.Constraint("Coincident", 33, 2, 34, 1))
sketch3.addConstraint(Sketcher.Constraint("Coincident", 34, 2, 35, 1))
sketch3.addConstraint(Sketcher.Constraint("Coincident", 35, 2, 32, 1))
sketch3.addConstraint(Sketcher.Constraint("Coincident", 36, 2, 37, 1))
sketch3.addConstraint(Sketcher.Constraint("Coincident", 37, 2, 38, 1))
sketch3.addConstraint(Sketcher.Constraint("Coincident", 38, 2, 39, 1))
sketch3.addConstraint(Sketcher.Constraint("Coincident", 39, 2, 36, 1))
sketch3.addConstraint(Sketcher.Constraint("Coincident", 40, 2, 41, 1))
sketch3.addConstraint(Sketcher.Constraint("Coincident", 41, 2, 42, 1))
sketch3.addConstraint(Sketcher.Constraint("Coincident", 42, 2, 43, 1))
sketch3.addConstraint(Sketcher.Constraint("Coincident", 43, 2, 40, 1))
sketch3.addConstraint(Sketcher.Constraint("Coincident", 44, 2, 45, 1))
sketch3.addConstraint(Sketcher.Constraint("Coincident", 45, 2, 46, 1))
sketch3.addConstraint(Sketcher.Constraint("Coincident", 46, 2, 47, 1))
sketch3.addConstraint(Sketcher.Constraint("Coincident", 47, 2, 44, 1))
sketch3.addConstraint(Sketcher.Constraint("Vertical", 0))
sketch3.addConstraint(Sketcher.Constraint("Horizontal", 1))
sketch3.addConstraint(Sketcher.Constraint("Vertical", 2))
sketch3.addConstraint(Sketcher.Constraint("Horizontal", 3))
sketch3.addConstraint(Sketcher.Constraint("Vertical", 4))
sketch3.addConstraint(Sketcher.Constraint("Horizontal", 5))
sketch3.addConstraint(Sketcher.Constraint("Vertical", 6))
sketch3.addConstraint(Sketcher.Constraint("Horizontal", 7))
sketch3.addConstraint(Sketcher.Constraint("Vertical", 8))
sketch3.addConstraint(Sketcher.Constraint("Horizontal", 9))
sketch3.addConstraint(Sketcher.Constraint("Vertical", 10))
sketch3.addConstraint(Sketcher.Constraint("Horizontal", 11))
sketch3.addConstraint(Sketcher.Constraint("Vertical", 12))
sketch3.addConstraint(Sketcher.Constraint("Horizontal", 13))
sketch3.addConstraint(Sketcher.Constraint("Vertical", 14))
sketch3.addConstraint(Sketcher.Constraint("Horizontal", 15))
sketch3.addConstraint(Sketcher.Constraint("Vertical", 16))
sketch3.addConstraint(Sketcher.Constraint("Horizontal", 17))
sketch3.addConstraint(Sketcher.Constraint("Vertical", 18))
sketch3.addConstraint(Sketcher.Constraint("Horizontal", 19))
sketch3.addConstraint(Sketcher.Constraint("Vertical", 20))
sketch3.addConstraint(Sketcher.Constraint("Horizontal", 21))
sketch3.addConstraint(Sketcher.Constraint("Vertical", 22))
sketch3.addConstraint(Sketcher.Constraint("Horizontal", 23))
sketch3.addConstraint(Sketcher.Constraint("Vertical", 24))
sketch3.addConstraint(Sketcher.Constraint("Horizontal", 25))
sketch3.addConstraint(Sketcher.Constraint("Vertical", 26))
sketch3.addConstraint(Sketcher.Constraint("Horizontal", 27))
sketch3.addConstraint(Sketcher.Constraint("Vertical", 28))
sketch3.addConstraint(Sketcher.Constraint("Horizontal", 29))
sketch3.addConstraint(Sketcher.Constraint("Vertical", 30))
sketch3.addConstraint(Sketcher.Constraint("Horizontal", 31))
sketch3.addConstraint(Sketcher.Constraint("Vertical", 32))
sketch3.addConstraint(Sketcher.Constraint("Horizontal", 33))
sketch3.addConstraint(Sketcher.Constraint("Vertical", 34))
sketch3.addConstraint(Sketcher.Constraint("Horizontal", 35))
sketch3.addConstraint(Sketcher.Constraint("Vertical", 36))
sketch3.addConstraint(Sketcher.Constraint("Horizontal", 37))
sketch3.addConstraint(Sketcher.Constraint("Vertical", 38))
sketch3.addConstraint(Sketcher.Constraint("Horizontal", 39))
sketch3.addConstraint(Sketcher.Constraint("Vertical", 40))
sketch3.addConstraint(Sketcher.Constraint("Horizontal", 41))
sketch3.addConstraint(Sketcher.Constraint("Vertical", 42))
sketch3.addConstraint(Sketcher.Constraint("Horizontal", 43))
sketch3.addConstraint(Sketcher.Constraint("Vertical", 44))
sketch3.addConstraint(Sketcher.Constraint("Horizontal", 45))
sketch3.addConstraint(Sketcher.Constraint("Vertical", 46))
sketch3.addConstraint(Sketcher.Constraint("Horizontal", 47))
sketch3.addConstraint(Sketcher.Constraint("Symmetric", 23, 2, 24, 2, -1))
sketch3.addConstraint(Sketcher.Constraint("Symmetric", 21, 2, 26, 2, -1))
sketch3.addConstraint(Sketcher.Constraint("Symmetric", 19, 2, 28, 2, -1))
sketch3.addConstraint(Sketcher.Constraint("Symmetric", 17, 2, 30, 2, -1))
sketch3.addConstraint(Sketcher.Constraint("Symmetric", 7, 2, 32, 2, -1))
sketch3.addConstraint(Sketcher.Constraint("Symmetric", 5, 2, 34, 2, -1))
sketch3.addConstraint(Sketcher.Constraint("Symmetric", 15, 2, 36, 2, -1))
sketch3.addConstraint(Sketcher.Constraint("Symmetric", 13, 2, 38, 2, -1))
sketch3.addConstraint(Sketcher.Constraint("Symmetric", 3, 2, 40, 2, -1))
sketch3.addConstraint(Sketcher.Constraint("Symmetric", 1, 2, 42, 2, -1))
sketch3.addConstraint(Sketcher.Constraint("Symmetric", 11, 2, 44, 2, -1))
sketch3.addConstraint(Sketcher.Constraint("Symmetric", 9, 2, 46, 2, -1))
sketch3.addConstraint(Sketcher.Constraint("Horizontal", 1, 2, 8, 2))
sketch3.addConstraint(Sketcher.Constraint("Horizontal", 3, 2, 10, 2))
sketch3.addConstraint(Sketcher.Constraint("Horizontal", 5, 2, 12, 2))
sketch3.addConstraint(Sketcher.Constraint("Horizontal", 7, 2, 14, 2))
sketch3.addConstraint(Sketcher.Constraint("Horizontal", 17, 2, 20, 2))
sketch3.addConstraint(Sketcher.Constraint("Horizontal", 19, 2, 22, 2))
sketch3.addConstraint(Sketcher.Constraint("Vertical", 3, 2, 4, 2))
sketch3.addConstraint(Sketcher.Constraint("Vertical", 2, 2, 5, 2))
sketch3.addConstraint(Sketcher.Constraint("Vertical", 11, 2, 12, 2))
sketch3.addConstraint(Sketcher.Constraint("Vertical", 10, 2, 13, 2))
sketch3.addConstraint(Sketcher.Constraint("Equal", 7, 9))
sketch3.addConstraint(Sketcher.Constraint("Equal", 15, 17))
sketch3.addConstraint(Sketcher.Constraint("Equal", 19, 21))
sketch3.addConstraint(Sketcher.Constraint("Equal", 2, 4))
sketch3.addConstraint(Sketcher.Constraint("Equal", 14, 16))
sketch3.addConstraint(Sketcher.Constraint("DistanceX", 1, 1, 1, 2, 2.0))
sketch3.addConstraint(Sketcher.Constraint("DistanceY", 0, 2, 0, 1, 4.0))
sketch3.addConstraint(Sketcher.Constraint("DistanceX", 0, 2, -1, 1, 43.0))
sketch3.addConstraint(Sketcher.Constraint("DistanceX", 8, 2, -1, 1, 59.0))
sketch3.addConstraint(Sketcher.Constraint("DistanceX", -1, 1, 16, 2, 41.0))
sketch3.addConstraint(Sketcher.Constraint("DistanceX", -1, 1, 20, 2, 57.0))
sketch3.addConstraint(Sketcher.Constraint("DistanceY", 4, 2, 0, 2, 11.0))
sketch3.addConstraint(Sketcher.Constraint("DistanceY", 16, 2, 5, 2, 24.0))
sketch3.addConstraint(Sketcher.Constraint("DistanceY", 24, 2, 20, 2, 11.0))
pocket1 = body.newObject("PartDesign::Pocket", "Pocket")
pocket1.Profile = sketch3
pocket1.Type = "ThroughAll"

doc.recompute()
